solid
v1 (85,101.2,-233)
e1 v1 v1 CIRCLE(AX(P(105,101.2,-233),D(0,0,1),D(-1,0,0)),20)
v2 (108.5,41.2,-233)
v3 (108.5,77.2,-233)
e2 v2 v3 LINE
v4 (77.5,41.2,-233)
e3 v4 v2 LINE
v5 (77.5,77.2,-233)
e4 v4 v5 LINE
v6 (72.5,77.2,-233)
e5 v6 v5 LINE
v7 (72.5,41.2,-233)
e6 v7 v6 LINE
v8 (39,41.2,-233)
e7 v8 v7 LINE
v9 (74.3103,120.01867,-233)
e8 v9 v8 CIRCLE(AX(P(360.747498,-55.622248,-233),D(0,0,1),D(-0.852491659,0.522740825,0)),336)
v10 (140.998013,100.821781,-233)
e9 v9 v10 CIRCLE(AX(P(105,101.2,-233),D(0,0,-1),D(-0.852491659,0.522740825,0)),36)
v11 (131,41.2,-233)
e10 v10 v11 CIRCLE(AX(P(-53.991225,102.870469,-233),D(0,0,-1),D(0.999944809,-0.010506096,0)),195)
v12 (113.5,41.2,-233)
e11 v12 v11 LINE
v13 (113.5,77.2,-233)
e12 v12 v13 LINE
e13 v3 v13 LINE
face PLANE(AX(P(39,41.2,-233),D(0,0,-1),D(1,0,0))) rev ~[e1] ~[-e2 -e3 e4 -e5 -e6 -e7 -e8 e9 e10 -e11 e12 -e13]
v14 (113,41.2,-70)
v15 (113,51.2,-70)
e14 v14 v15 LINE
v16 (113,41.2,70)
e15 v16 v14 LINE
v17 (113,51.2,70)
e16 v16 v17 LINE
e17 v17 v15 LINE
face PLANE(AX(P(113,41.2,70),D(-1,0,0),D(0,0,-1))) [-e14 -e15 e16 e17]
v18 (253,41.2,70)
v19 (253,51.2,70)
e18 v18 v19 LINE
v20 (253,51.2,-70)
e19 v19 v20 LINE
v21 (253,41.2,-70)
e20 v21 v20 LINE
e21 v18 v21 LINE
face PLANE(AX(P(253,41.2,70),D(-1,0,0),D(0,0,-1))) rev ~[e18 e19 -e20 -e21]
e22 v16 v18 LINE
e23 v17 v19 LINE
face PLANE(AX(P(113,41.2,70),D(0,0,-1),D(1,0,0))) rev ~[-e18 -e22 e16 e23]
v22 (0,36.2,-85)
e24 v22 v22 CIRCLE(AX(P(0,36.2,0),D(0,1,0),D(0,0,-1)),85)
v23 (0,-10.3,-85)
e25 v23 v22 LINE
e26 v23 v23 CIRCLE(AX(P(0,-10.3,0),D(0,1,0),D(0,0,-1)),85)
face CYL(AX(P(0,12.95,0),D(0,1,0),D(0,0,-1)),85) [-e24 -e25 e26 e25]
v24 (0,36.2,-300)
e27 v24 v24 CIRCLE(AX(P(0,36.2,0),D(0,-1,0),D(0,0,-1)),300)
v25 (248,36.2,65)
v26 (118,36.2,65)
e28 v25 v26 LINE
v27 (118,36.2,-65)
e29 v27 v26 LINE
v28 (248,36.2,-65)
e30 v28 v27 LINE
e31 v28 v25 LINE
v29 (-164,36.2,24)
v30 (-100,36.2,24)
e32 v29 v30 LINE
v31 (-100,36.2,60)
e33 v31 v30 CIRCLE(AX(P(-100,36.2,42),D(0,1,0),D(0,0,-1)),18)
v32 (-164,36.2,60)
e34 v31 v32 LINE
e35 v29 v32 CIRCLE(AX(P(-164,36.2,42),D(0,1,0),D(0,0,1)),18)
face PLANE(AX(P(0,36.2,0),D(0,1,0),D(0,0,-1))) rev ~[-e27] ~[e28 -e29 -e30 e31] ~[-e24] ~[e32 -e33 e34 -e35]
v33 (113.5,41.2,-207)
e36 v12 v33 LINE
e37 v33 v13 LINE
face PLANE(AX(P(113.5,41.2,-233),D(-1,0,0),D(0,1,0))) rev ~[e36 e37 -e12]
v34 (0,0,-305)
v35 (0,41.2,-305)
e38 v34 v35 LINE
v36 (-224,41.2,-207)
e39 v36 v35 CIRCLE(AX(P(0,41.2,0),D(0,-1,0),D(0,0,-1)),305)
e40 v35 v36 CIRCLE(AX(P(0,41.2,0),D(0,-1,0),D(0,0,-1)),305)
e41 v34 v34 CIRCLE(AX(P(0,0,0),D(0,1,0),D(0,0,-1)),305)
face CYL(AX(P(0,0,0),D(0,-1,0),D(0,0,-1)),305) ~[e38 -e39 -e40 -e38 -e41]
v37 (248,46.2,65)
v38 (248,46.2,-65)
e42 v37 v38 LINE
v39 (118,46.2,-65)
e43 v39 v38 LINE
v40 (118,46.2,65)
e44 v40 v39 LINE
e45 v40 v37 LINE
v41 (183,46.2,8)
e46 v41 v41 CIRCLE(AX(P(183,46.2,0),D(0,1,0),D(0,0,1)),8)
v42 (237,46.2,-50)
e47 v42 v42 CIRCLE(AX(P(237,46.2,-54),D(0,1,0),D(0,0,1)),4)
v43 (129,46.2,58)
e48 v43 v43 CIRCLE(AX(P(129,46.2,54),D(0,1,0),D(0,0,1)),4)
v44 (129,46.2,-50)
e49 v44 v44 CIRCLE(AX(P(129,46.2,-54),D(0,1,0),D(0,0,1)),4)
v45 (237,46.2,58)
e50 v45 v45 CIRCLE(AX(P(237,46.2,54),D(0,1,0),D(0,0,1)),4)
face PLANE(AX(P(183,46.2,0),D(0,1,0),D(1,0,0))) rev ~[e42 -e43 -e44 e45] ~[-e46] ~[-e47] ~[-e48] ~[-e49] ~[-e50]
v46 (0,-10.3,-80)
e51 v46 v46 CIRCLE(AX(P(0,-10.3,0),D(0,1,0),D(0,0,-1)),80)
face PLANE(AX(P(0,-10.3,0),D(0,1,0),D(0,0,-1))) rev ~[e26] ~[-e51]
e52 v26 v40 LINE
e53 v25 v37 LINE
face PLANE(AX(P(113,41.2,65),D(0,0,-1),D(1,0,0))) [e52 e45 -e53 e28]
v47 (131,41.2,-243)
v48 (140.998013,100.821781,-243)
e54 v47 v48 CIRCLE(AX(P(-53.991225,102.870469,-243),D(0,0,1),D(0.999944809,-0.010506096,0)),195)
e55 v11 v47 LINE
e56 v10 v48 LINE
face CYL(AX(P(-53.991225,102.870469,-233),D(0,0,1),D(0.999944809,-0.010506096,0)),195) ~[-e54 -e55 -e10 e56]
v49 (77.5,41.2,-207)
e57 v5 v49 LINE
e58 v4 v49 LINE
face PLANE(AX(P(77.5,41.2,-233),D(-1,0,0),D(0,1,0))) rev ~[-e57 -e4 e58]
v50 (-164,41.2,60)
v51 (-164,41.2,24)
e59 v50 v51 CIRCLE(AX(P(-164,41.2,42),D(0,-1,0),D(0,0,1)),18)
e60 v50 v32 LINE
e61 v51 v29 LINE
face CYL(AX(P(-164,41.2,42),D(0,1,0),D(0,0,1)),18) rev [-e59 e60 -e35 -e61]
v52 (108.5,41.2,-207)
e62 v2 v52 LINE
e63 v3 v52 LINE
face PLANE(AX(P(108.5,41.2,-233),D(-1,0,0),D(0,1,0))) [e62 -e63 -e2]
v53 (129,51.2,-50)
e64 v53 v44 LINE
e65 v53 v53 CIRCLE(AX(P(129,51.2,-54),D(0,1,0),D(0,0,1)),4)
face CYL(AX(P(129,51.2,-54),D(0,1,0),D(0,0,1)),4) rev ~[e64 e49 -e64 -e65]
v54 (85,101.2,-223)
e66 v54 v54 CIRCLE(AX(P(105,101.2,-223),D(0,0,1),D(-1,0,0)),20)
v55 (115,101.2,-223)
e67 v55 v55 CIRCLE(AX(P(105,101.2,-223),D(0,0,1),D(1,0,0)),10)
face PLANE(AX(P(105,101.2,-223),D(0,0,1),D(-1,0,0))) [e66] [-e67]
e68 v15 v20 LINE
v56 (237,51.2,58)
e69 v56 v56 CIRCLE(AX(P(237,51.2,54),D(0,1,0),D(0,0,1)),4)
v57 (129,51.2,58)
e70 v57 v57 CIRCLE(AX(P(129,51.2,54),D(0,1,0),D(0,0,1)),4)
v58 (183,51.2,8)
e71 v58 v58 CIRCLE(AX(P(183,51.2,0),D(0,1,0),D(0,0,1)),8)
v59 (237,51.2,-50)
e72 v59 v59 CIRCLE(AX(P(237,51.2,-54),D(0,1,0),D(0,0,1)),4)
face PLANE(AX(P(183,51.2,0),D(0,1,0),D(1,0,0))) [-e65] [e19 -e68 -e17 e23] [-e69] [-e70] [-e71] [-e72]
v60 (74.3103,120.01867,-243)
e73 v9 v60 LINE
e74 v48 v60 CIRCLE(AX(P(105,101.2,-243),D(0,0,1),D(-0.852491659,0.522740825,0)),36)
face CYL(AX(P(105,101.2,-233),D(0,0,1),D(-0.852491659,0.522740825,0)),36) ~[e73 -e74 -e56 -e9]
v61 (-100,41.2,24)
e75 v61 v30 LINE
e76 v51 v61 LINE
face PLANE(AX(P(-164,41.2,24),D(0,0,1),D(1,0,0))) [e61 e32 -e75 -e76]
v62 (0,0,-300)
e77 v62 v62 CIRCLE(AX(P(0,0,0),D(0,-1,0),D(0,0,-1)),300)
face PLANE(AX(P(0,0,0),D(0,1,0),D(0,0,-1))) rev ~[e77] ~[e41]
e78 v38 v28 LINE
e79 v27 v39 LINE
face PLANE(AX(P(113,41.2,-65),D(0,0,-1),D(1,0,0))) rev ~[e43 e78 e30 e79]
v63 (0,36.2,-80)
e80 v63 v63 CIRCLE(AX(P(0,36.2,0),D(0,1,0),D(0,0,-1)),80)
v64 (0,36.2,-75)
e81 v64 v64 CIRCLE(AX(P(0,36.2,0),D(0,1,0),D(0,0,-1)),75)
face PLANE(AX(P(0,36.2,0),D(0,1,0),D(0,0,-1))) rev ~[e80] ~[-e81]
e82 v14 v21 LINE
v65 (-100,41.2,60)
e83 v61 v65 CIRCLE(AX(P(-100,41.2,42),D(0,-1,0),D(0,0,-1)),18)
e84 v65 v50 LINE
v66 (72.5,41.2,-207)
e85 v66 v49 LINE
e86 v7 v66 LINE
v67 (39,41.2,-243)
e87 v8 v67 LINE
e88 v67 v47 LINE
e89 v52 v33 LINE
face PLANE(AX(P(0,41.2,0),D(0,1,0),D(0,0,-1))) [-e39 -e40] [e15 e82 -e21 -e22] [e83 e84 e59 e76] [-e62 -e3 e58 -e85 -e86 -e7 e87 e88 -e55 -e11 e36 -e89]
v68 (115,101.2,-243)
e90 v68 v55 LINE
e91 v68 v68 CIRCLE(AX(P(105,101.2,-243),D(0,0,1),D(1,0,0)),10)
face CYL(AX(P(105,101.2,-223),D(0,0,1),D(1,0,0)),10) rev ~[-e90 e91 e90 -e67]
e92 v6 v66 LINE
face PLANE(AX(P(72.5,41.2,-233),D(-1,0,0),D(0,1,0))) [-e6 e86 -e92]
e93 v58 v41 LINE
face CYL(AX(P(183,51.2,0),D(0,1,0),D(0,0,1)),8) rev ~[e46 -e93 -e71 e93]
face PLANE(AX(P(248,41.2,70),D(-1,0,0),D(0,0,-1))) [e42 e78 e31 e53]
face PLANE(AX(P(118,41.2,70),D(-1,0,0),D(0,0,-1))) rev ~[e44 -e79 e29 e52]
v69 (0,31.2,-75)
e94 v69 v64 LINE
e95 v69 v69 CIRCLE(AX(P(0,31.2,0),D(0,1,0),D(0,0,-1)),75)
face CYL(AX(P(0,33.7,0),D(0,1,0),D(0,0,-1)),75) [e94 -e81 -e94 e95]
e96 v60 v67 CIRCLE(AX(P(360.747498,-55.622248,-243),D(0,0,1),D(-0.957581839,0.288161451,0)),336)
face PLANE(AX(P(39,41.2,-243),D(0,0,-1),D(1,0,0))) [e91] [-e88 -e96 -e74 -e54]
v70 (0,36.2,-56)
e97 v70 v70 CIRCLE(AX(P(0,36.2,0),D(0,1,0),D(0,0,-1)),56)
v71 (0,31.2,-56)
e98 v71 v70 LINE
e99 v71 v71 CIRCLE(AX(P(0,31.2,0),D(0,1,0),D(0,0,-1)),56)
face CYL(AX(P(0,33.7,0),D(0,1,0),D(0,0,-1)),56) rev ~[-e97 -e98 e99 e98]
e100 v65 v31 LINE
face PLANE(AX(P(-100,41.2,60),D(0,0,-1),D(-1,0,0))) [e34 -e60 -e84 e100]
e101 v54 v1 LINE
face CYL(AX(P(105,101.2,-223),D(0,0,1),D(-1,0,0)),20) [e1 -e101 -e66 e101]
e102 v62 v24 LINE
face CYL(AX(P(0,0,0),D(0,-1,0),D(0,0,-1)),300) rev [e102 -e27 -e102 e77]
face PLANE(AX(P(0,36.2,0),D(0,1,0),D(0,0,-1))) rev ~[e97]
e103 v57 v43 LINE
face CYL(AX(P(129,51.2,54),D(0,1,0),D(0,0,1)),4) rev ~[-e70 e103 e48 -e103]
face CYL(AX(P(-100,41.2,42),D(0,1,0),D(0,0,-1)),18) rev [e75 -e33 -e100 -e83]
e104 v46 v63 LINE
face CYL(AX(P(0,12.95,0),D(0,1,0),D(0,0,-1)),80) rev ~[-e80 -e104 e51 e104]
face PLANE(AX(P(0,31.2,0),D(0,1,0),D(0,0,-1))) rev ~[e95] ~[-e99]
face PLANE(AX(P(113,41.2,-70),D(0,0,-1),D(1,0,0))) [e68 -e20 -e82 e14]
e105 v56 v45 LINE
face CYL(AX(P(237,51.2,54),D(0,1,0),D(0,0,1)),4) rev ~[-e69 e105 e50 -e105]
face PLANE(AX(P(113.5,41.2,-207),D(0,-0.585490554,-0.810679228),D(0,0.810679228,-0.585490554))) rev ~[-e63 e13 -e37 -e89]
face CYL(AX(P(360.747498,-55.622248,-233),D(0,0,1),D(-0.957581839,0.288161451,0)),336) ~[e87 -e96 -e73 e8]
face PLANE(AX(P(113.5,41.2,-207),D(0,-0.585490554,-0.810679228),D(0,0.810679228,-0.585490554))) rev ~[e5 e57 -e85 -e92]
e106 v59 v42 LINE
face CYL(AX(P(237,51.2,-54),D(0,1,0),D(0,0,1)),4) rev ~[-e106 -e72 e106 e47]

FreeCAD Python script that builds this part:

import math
import FreeCAD as App
import Part
import Sketcher
from FreeCAD import Vector
Q = App.Units.Quantity


def faces_at(feature, points):
    """Names of the faces that lie closest to the given points."""
    faces = feature.Shape.Faces
    near = lambda p: min(range(len(faces)), key=lambda i: faces[i].distToShape(Part.Vertex(*p))[0])
    return sorted({f"Face{near(p) + 1}" for p in points})


def add_polygon(sketch, points):
    """Adds a closed chain of lines whose ends are joined by coincident constraints."""
    first, n = sketch.GeometryCount, len(points)
    for a, b in zip(points, points[1:] + points[:1]):
        sketch.addGeometry(Part.LineSegment(App.Vector(*a, 0), App.Vector(*b, 0)), False)
    for i in range(n):
        sketch.addConstraint(Sketcher.Constraint("Coincident", first + i, 2, first + (i + 1) % n, 1))

doc = App.newDocument("Part")
body = doc.addObject("PartDesign::Body", "Body")

sketch1 = body.newObject("Sketcher::SketchObject", "Sketch")
sketch1.AttachmentSupport = (doc.getObject("XZ_Plane"), [""])
sketch1.MapMode = "FlatFace"
sketch1.addGeometry(Part.Circle(Vector(0, 0, 0), Vector(0, 0, 1), 305), False)
sketch1.addConstraint([
    Sketcher.Constraint("Coincident", 0, 3, -1, 1),
    Sketcher.Constraint("Diameter", 0, Q("610 mm")),
])
pad1 = body.newObject("PartDesign::Pad", "Pad")
pad1.Profile = sketch1
pad1.Length = 41.2
pad1.Reversed = True

sketch2 = body.newObject("Sketcher::SketchObject", "Sketch001")
sketch2.AttachmentSupport = (doc.getObject("XZ_Plane"), [""])
sketch2.MapMode = "FlatFace"
sketch2.AttachmentOffset = App.Placement(Vector(0, 0, -41.2), App.Rotation())
add_polygon(sketch2, [(113, -70), (113, 70), (253, 70), (253, -70)])
sketch2.addConstraint([
    Sketcher.Constraint("Vertical", 0),
    Sketcher.Constraint("Horizontal", 1),
    Sketcher.Constraint("Vertical", 2),
    Sketcher.Constraint("Horizontal", 3),
    Sketcher.Constraint("Equal", 3, 0),
    Sketcher.Constraint("DistanceX", 1, 1, 1, 2, Q("140 mm")),
    Sketcher.Constraint("DistanceX", -1, 1, 0, 2, Q("113 mm")),
    Sketcher.Constraint("DistanceY", -1, 1, 0, 2, Q("70 mm")),
])
pad2 = body.newObject("PartDesign::Pad", "Pad001")
pad2.Profile = sketch2
pad2.Length = 10
pad2.Reversed = True
doc.recompute()

thickness = body.newObject("PartDesign::Thickness", "Thickness")
thickness.Base = (pad2, faces_at(pad2, [(0, 0, 0)]))
thickness.Value = 5
thickness.Reversed = True
thickness.Join = "Intersection"

sketch3 = body.newObject("Sketcher::SketchObject", "Sketch002")
sketch3.AttachmentSupport = (doc.getObject("XZ_Plane"), [""])
sketch3.MapMode = "FlatFace"
sketch3.AttachmentOffset = App.Placement(Vector(0, 0, -41.2), App.Rotation())
sketch3.addGeometry([
    Part.LineSegment(Vector(-100, 24, 0), Vector(-164, 24, 0)),
    Part.ArcOfCircle(Part.Circle(Vector(-164, 42, 0), Vector(0, 0, 1), 18), math.radians(90), math.radians(270)),
    Part.LineSegment(Vector(-164, 60, 0), Vector(-100, 60, 0)),
    Part.ArcOfCircle(Part.Circle(Vector(-100, 42, 0), Vector(0, 0, 1), 18), math.radians(-90), math.radians(90)),
], False)
sketch3.addConstraint([
    Sketcher.Constraint("Tangent", 0, 2, 1, 2),
    Sketcher.Constraint("Tangent", 1, 1, 2, 1),
    Sketcher.Constraint("Tangent", 2, 2, 3, 2),
    Sketcher.Constraint("Tangent", 3, 1, 0, 1),
    Sketcher.Constraint("Horizontal", 0),
    Sketcher.Constraint("Horizontal", 2),
    Sketcher.Constraint("Radius", 1, Q("18 mm")),
    Sketcher.Constraint("DistanceX", 0, 2, 0, 1, Q("64 mm")),
    Sketcher.Constraint("DistanceX", 1, 3, -1, 1, Q("164 mm")),
    Sketcher.Constraint("DistanceY", -1, 1, 1, 3, Q("42 mm")),
])
pocket1 = body.newObject("PartDesign::Pocket", "Pocket")
pocket1.Profile = sketch3
pocket1.Length = 10
pocket1.Reversed = True

sketch4 = body.newObject("Sketcher::SketchObject", "Sketch003")
sketch4.AttachmentSupport = (doc.getObject("XZ_Plane"), [""])
sketch4.MapMode = "FlatFace"
sketch4.AttachmentOffset = App.Placement(Vector(0, 0, -41.2), App.Rotation())
add_polygon(sketch4, [(39, -243), (39, -233), (159, -233), (159, -243)])
sketch4.addConstraint([
    Sketcher.Constraint("Vertical", 0),
    Sketcher.Constraint("Horizontal", 1),
    Sketcher.Constraint("Vertical", 2),
    Sketcher.Constraint("Horizontal", 3),
    Sketcher.Constraint("DistanceX", 1, 1, 1, 2, Q("120 mm")),
    Sketcher.Constraint("DistanceY", 0, 1, 0, 2, Q("10 mm")),
    Sketcher.Constraint("DistanceX", -1, 1, 0, 2, Q("39 mm")),
    Sketcher.Constraint("DistanceY", 0, 2, -1, 1, Q("233 mm")),
])
pad3 = body.newObject("PartDesign::Pad", "Pad002")
pad3.Profile = sketch4
pad3.Length = 150
pad3.Reversed = True

sketch5 = body.newObject("Sketcher::SketchObject", "Sketch004")
sketch5.AttachmentSupport = (doc.getObject("XY_Plane"), [""])
sketch5.MapMode = "FlatFace"
sketch5.AttachmentOffset = App.Placement(Vector(0, 0, -233), App.Rotation())
sketch5.addGeometry([
    Part.LineSegment(Vector(131, 41.2, 0), Vector(159, 41.2, 0)),
    Part.LineSegment(Vector(159, 41.2, 0), Vector(159, 191.2, 0)),
    Part.LineSegment(Vector(159, 191.2, 0), Vector(39, 191.2, 0)),
    Part.LineSegment(Vector(39, 191.2, 0), Vector(39, 41.2, 0)),
    Part.ArcOfCircle(Part.Circle(Vector(360.747498, -55.622248, 0), Vector(0, 0, 1), 336), math.radians(148.483719), math.radians(163.252083)),
    Part.ArcOfCircle(Part.Circle(Vector(105, 101.2, 0), Vector(0, 0, 1), 36), math.radians(-0.601966), math.radians(148.483719)),
    Part.ArcOfCircle(Part.Circle(Vector(-53.991225, 102.870469, 0), Vector(0, 0, 1), 195), math.radians(-18.436824), math.radians(-0.601966)),
], False)
sketch5.addConstraint([
    Sketcher.Constraint("Coincident", 0, 2, 1, 1),
    Sketcher.Constraint("Coincident", 1, 2, 2, 1),
    Sketcher.Constraint("Coincident", 2, 2, 3, 1),
    Sketcher.Constraint("Coincident", 3, 2, 4, 2),
    Sketcher.Constraint("Tangent", 4, 1, 5, 2),
    Sketcher.Constraint("Tangent", 5, 1, 6, 2),
    Sketcher.Constraint("Coincident", 6, 1, 0, 1),
    Sketcher.Constraint("Horizontal", 0),
    Sketcher.Constraint("Vertical", 1),
    Sketcher.Constraint("Horizontal", 2),
    Sketcher.Constraint("Vertical", 3),
    Sketcher.Constraint("Horizontal", 0, 2, 3, 2),
    Sketcher.Constraint("Radius", 4, Q("336 mm")),
    Sketcher.Constraint("Radius", 5, Q("36 mm")),
    Sketcher.Constraint("Radius", 6, Q("195 mm")),
    Sketcher.Constraint("DistanceX", 0, 1, 0, 2, Q("28 mm")),
    Sketcher.Constraint("DistanceX", 2, 2, 2, 1, Q("120 mm")),
    Sketcher.Constraint("DistanceY", 1, 1, 1, 2, Q("150 mm")),
    Sketcher.Constraint("DistanceX", -1, 1, 5, 3, Q("105 mm")),
    Sketcher.Constraint("DistanceX", -1, 1, 0, 2, Q("159 mm")),
    Sketcher.Constraint("DistanceY", 0, 2, 5, 3, Q("60 mm")),
    Sketcher.Constraint("DistanceY", -1, 1, 5, 3, Q("101.2 mm")),
])
pocket2 = body.newObject("PartDesign::Pocket", "Pocket001")
pocket2.Profile = sketch5
pocket2.Type = "ThroughAll"

sketch6 = body.newObject("Sketcher::SketchObject", "Sketch005")
sketch6.AttachmentSupport = (doc.getObject("XY_Plane"), [""])
sketch6.MapMode = "FlatFace"
sketch6.AttachmentOffset = App.Placement(Vector(0, 0, -233), App.Rotation())
sketch6.addGeometry(Part.Circle(Vector(105, 101.2, 0), Vector(0, 0, 1), 10), False)
sketch6.addConstraint([
    Sketcher.Constraint("Diameter", 0, Q("20 mm")),
    Sketcher.Constraint("DistanceX", -1, 1, 0, 3, Q("105 mm")),
    Sketcher.Constraint("DistanceY", -1, 1, 0, 3, Q("101.2 mm")),
])
pocket3 = body.newObject("PartDesign::Pocket", "Pocket002")
pocket3.Profile = sketch6
pocket3.Type = "ThroughAll"

sketch7 = body.newObject("Sketcher::SketchObject", "Sketch006")
sketch7.AttachmentSupport = (doc.getObject("XY_Plane"), [""])
sketch7.MapMode = "FlatFace"
sketch7.AttachmentOffset = App.Placement(Vector(0, 0, -223), App.Rotation())
sketch7.addGeometry([
    Part.Circle(Vector(105, 101.2, 0), Vector(0, 0, 1), 20),
    Part.Circle(Vector(105, 101.2, 0), Vector(0, 0, 1), 10),
], False)
sketch7.addConstraint([
    Sketcher.Constraint("Coincident", 1, 3, 0, 3),
    Sketcher.Constraint("Diameter", 0, Q("40 mm")),
    Sketcher.Constraint("Diameter", 1, Q("20 mm")),
    Sketcher.Constraint("DistanceX", -1, 1, 0, 3, Q("105 mm")),
    Sketcher.Constraint("DistanceY", -1, 1, 0, 3, Q("101.2 mm")),
])
pad4 = body.newObject("PartDesign::Pad", "Pad003")
pad4.Profile = sketch7
pad4.Length = 10
pad4.Reversed = True

sketch8 = body.newObject("Sketcher::SketchObject", "Sketch007")
sketch8.AttachmentSupport = (doc.getObject("XY_Plane"), [""])
sketch8.MapMode = "FlatFace"
sketch8.AttachmentOffset = App.Placement(Vector(0, 0, -233), App.Rotation())
add_polygon(sketch8, [(72.5, 77.2), (72.5, 41.2), (77.5, 41.2), (77.5, 77.2)])
add_polygon(sketch8, [(108.5, 77.2), (108.5, 41.2), (113.5, 41.2), (113.5, 77.2)])
sketch8.addConstraint([
    Sketcher.Constraint("Vertical", 0),
    Sketcher.Constraint("Horizontal", 1),
    Sketcher.Constraint("Vertical", 2),
    Sketcher.Constraint("Horizontal", 3),
    Sketcher.Constraint("Vertical", 4),
    Sketcher.Constraint("Horizontal", 5),
    Sketcher.Constraint("Vertical", 6),
    Sketcher.Constraint("Horizontal", 7),
    Sketcher.Constraint("Horizontal", 1, 2, 4, 2),
    Sketcher.Constraint("Horizontal", 3, 2, 6, 2),
    Sketcher.Constraint("Equal", 3, 5),
    Sketcher.Constraint("DistanceX", 1, 1, 1, 2, Q("5 mm")),
    Sketcher.Constraint("DistanceY", 0, 2, 0, 1, Q("36 mm")),
    Sketcher.Constraint("DistanceX", 1, 2, 4, 2, Q("31 mm")),
    Sketcher.Constraint("DistanceX", -1, 1, 0, 2, Q("72.5 mm")),
    Sketcher.Constraint("DistanceY", -1, 1, 0, 2, Q("41.2 mm")),
])
pad5 = body.newObject("PartDesign::Pad", "Pad004")
pad5.Profile = sketch8
pad5.Length = 26

sketch9 = body.newObject("Sketcher::SketchObject", "Sketch008")
sketch9.AttachmentSupport = (doc.getObject("YZ_Plane"), [""])
sketch9.MapMode = "FlatFace"
sketch9.AttachmentOffset = App.Placement(Vector(0, 0, 113.5), App.Rotation())
add_polygon(sketch9, [(41.2, -207), (77.2, -233), (77.2, -207)])
sketch9.addConstraint([
    Sketcher.Constraint("Vertical", 1),
    Sketcher.Constraint("Horizontal", 2),
    Sketcher.Constraint("DistanceX", 2, 2, 2, 1, Q("36 mm")),
    Sketcher.Constraint("DistanceY", 1, 1, 1, 2, Q("26 mm")),
    Sketcher.Constraint("DistanceY", 0, 2, -1, 1, Q("233 mm")),
    Sketcher.Constraint("DistanceX", -1, 1, 0, 2, Q("77.2 mm")),
])
pocket4 = body.newObject("PartDesign::Pocket", "Pocket003")
pocket4.Profile = sketch9
pocket4.Type = "ThroughAll"

sketch10 = body.newObject("Sketcher::SketchObject", "Sketch009")
sketch10.AttachmentSupport = (doc.getObject("XY_Plane"), [""])
sketch10.MapMode = "FlatFace"
add_polygon(sketch10, [(-85, 36.2), (-85, -10.3), (-80, -10.3), (-80, 36.2)])
add_polygon(sketch10, [(-75, 36.2), (-75, 31.2), (-56, 31.2), (-56, 36.2)])
sketch10.addConstraint([
    Sketcher.Constraint("Vertical", 0),
    Sketcher.Constraint("Horizontal", 1),
    Sketcher.Constraint("Vertical", 2),
    Sketcher.Constraint("Horizontal", 3),
    Sketcher.Constraint("Vertical", 4),
    Sketcher.Constraint("Horizontal", 5),
    Sketcher.Constraint("Vertical", 6),
    Sketcher.Constraint("Horizontal", 7),
    Sketcher.Constraint("Horizontal", 3, 2, 6, 2),
    Sketcher.Constraint("Equal", 3, 4),
    Sketcher.Constraint("DistanceX", 1, 1, 1, 2, Q("5 mm")),
    Sketcher.Constraint("DistanceX", 5, 1, 5, 2, Q("19 mm")),
    Sketcher.Constraint("DistanceY", 0, 2, 0, 1, Q("46.5 mm")),
    Sketcher.Constraint("DistanceX", 0, 2, -1, 1, Q("85 mm")),
    Sketcher.Constraint("DistanceX", 4, 2, -1, 1, Q("75 mm")),
    Sketcher.Constraint("DistanceY", 0, 2, -1, 1, Q("10.3 mm")),
])
revolution = body.newObject("PartDesign::Revolution", "Revolution")
revolution.Profile = sketch10
revolution.ReferenceAxis = (sketch10, ["V_Axis"])
revolution.Angle = 360

sketch11 = body.newObject("Sketcher::SketchObject", "Sketch010")
sketch11.AttachmentSupport = (doc.getObject("XZ_Plane"), [""])
sketch11.MapMode = "FlatFace"
sketch11.AttachmentOffset = App.Placement(Vector(0, 0, -51.2), App.Rotation())
sketch11.addGeometry([
    Part.Circle(Vector(183, 0, 0), Vector(0, 0, 1), 8),
    Part.Circle(Vector(237, -54, 0), Vector(0, 0, 1), 4),
    Part.Circle(Vector(129, -54, 0), Vector(0, 0, 1), 4),
    Part.Circle(Vector(129, 54, 0), Vector(0, 0, 1), 4),
    Part.Circle(Vector(237, 54, 0), Vector(0, 0, 1), 4),
], False)
sketch11.addConstraint([
    Sketcher.Constraint("Equal", 1, 2),
    Sketcher.Constraint("Equal", 2, 3),
    Sketcher.Constraint("Equal", 3, 4),
    Sketcher.Constraint("Symmetric", 2, 3, 3, 3, -1),
    Sketcher.Constraint("Symmetric", 1, 3, 4, 3, -1),
    Sketcher.Constraint("PointOnObject", 0, 3, -1),
    Sketcher.Constraint("Horizontal", 1, 3, 2, 3),
    Sketcher.Constraint("Diameter", 0, Q("16 mm")),
    Sketcher.Constraint("Diameter", 1, Q("8 mm")),
    Sketcher.Constraint("DistanceX", -1, 1, 0, 3, Q("183 mm")),
    Sketcher.Constraint("DistanceX", -1, 1, 1, 3, Q("237 mm")),
    Sketcher.Constraint("DistanceY", 1, 3, -1, 1, Q("54 mm")),
    Sketcher.Constraint("DistanceX", -1, 1, 2, 3, Q("129 mm")),
])
pocket5 = body.newObject("PartDesign::Pocket", "Pocket004")
pocket5.Profile = sketch11
pocket5.Type = "ThroughAll"
pocket5.Reversed = True

doc.recompute()
